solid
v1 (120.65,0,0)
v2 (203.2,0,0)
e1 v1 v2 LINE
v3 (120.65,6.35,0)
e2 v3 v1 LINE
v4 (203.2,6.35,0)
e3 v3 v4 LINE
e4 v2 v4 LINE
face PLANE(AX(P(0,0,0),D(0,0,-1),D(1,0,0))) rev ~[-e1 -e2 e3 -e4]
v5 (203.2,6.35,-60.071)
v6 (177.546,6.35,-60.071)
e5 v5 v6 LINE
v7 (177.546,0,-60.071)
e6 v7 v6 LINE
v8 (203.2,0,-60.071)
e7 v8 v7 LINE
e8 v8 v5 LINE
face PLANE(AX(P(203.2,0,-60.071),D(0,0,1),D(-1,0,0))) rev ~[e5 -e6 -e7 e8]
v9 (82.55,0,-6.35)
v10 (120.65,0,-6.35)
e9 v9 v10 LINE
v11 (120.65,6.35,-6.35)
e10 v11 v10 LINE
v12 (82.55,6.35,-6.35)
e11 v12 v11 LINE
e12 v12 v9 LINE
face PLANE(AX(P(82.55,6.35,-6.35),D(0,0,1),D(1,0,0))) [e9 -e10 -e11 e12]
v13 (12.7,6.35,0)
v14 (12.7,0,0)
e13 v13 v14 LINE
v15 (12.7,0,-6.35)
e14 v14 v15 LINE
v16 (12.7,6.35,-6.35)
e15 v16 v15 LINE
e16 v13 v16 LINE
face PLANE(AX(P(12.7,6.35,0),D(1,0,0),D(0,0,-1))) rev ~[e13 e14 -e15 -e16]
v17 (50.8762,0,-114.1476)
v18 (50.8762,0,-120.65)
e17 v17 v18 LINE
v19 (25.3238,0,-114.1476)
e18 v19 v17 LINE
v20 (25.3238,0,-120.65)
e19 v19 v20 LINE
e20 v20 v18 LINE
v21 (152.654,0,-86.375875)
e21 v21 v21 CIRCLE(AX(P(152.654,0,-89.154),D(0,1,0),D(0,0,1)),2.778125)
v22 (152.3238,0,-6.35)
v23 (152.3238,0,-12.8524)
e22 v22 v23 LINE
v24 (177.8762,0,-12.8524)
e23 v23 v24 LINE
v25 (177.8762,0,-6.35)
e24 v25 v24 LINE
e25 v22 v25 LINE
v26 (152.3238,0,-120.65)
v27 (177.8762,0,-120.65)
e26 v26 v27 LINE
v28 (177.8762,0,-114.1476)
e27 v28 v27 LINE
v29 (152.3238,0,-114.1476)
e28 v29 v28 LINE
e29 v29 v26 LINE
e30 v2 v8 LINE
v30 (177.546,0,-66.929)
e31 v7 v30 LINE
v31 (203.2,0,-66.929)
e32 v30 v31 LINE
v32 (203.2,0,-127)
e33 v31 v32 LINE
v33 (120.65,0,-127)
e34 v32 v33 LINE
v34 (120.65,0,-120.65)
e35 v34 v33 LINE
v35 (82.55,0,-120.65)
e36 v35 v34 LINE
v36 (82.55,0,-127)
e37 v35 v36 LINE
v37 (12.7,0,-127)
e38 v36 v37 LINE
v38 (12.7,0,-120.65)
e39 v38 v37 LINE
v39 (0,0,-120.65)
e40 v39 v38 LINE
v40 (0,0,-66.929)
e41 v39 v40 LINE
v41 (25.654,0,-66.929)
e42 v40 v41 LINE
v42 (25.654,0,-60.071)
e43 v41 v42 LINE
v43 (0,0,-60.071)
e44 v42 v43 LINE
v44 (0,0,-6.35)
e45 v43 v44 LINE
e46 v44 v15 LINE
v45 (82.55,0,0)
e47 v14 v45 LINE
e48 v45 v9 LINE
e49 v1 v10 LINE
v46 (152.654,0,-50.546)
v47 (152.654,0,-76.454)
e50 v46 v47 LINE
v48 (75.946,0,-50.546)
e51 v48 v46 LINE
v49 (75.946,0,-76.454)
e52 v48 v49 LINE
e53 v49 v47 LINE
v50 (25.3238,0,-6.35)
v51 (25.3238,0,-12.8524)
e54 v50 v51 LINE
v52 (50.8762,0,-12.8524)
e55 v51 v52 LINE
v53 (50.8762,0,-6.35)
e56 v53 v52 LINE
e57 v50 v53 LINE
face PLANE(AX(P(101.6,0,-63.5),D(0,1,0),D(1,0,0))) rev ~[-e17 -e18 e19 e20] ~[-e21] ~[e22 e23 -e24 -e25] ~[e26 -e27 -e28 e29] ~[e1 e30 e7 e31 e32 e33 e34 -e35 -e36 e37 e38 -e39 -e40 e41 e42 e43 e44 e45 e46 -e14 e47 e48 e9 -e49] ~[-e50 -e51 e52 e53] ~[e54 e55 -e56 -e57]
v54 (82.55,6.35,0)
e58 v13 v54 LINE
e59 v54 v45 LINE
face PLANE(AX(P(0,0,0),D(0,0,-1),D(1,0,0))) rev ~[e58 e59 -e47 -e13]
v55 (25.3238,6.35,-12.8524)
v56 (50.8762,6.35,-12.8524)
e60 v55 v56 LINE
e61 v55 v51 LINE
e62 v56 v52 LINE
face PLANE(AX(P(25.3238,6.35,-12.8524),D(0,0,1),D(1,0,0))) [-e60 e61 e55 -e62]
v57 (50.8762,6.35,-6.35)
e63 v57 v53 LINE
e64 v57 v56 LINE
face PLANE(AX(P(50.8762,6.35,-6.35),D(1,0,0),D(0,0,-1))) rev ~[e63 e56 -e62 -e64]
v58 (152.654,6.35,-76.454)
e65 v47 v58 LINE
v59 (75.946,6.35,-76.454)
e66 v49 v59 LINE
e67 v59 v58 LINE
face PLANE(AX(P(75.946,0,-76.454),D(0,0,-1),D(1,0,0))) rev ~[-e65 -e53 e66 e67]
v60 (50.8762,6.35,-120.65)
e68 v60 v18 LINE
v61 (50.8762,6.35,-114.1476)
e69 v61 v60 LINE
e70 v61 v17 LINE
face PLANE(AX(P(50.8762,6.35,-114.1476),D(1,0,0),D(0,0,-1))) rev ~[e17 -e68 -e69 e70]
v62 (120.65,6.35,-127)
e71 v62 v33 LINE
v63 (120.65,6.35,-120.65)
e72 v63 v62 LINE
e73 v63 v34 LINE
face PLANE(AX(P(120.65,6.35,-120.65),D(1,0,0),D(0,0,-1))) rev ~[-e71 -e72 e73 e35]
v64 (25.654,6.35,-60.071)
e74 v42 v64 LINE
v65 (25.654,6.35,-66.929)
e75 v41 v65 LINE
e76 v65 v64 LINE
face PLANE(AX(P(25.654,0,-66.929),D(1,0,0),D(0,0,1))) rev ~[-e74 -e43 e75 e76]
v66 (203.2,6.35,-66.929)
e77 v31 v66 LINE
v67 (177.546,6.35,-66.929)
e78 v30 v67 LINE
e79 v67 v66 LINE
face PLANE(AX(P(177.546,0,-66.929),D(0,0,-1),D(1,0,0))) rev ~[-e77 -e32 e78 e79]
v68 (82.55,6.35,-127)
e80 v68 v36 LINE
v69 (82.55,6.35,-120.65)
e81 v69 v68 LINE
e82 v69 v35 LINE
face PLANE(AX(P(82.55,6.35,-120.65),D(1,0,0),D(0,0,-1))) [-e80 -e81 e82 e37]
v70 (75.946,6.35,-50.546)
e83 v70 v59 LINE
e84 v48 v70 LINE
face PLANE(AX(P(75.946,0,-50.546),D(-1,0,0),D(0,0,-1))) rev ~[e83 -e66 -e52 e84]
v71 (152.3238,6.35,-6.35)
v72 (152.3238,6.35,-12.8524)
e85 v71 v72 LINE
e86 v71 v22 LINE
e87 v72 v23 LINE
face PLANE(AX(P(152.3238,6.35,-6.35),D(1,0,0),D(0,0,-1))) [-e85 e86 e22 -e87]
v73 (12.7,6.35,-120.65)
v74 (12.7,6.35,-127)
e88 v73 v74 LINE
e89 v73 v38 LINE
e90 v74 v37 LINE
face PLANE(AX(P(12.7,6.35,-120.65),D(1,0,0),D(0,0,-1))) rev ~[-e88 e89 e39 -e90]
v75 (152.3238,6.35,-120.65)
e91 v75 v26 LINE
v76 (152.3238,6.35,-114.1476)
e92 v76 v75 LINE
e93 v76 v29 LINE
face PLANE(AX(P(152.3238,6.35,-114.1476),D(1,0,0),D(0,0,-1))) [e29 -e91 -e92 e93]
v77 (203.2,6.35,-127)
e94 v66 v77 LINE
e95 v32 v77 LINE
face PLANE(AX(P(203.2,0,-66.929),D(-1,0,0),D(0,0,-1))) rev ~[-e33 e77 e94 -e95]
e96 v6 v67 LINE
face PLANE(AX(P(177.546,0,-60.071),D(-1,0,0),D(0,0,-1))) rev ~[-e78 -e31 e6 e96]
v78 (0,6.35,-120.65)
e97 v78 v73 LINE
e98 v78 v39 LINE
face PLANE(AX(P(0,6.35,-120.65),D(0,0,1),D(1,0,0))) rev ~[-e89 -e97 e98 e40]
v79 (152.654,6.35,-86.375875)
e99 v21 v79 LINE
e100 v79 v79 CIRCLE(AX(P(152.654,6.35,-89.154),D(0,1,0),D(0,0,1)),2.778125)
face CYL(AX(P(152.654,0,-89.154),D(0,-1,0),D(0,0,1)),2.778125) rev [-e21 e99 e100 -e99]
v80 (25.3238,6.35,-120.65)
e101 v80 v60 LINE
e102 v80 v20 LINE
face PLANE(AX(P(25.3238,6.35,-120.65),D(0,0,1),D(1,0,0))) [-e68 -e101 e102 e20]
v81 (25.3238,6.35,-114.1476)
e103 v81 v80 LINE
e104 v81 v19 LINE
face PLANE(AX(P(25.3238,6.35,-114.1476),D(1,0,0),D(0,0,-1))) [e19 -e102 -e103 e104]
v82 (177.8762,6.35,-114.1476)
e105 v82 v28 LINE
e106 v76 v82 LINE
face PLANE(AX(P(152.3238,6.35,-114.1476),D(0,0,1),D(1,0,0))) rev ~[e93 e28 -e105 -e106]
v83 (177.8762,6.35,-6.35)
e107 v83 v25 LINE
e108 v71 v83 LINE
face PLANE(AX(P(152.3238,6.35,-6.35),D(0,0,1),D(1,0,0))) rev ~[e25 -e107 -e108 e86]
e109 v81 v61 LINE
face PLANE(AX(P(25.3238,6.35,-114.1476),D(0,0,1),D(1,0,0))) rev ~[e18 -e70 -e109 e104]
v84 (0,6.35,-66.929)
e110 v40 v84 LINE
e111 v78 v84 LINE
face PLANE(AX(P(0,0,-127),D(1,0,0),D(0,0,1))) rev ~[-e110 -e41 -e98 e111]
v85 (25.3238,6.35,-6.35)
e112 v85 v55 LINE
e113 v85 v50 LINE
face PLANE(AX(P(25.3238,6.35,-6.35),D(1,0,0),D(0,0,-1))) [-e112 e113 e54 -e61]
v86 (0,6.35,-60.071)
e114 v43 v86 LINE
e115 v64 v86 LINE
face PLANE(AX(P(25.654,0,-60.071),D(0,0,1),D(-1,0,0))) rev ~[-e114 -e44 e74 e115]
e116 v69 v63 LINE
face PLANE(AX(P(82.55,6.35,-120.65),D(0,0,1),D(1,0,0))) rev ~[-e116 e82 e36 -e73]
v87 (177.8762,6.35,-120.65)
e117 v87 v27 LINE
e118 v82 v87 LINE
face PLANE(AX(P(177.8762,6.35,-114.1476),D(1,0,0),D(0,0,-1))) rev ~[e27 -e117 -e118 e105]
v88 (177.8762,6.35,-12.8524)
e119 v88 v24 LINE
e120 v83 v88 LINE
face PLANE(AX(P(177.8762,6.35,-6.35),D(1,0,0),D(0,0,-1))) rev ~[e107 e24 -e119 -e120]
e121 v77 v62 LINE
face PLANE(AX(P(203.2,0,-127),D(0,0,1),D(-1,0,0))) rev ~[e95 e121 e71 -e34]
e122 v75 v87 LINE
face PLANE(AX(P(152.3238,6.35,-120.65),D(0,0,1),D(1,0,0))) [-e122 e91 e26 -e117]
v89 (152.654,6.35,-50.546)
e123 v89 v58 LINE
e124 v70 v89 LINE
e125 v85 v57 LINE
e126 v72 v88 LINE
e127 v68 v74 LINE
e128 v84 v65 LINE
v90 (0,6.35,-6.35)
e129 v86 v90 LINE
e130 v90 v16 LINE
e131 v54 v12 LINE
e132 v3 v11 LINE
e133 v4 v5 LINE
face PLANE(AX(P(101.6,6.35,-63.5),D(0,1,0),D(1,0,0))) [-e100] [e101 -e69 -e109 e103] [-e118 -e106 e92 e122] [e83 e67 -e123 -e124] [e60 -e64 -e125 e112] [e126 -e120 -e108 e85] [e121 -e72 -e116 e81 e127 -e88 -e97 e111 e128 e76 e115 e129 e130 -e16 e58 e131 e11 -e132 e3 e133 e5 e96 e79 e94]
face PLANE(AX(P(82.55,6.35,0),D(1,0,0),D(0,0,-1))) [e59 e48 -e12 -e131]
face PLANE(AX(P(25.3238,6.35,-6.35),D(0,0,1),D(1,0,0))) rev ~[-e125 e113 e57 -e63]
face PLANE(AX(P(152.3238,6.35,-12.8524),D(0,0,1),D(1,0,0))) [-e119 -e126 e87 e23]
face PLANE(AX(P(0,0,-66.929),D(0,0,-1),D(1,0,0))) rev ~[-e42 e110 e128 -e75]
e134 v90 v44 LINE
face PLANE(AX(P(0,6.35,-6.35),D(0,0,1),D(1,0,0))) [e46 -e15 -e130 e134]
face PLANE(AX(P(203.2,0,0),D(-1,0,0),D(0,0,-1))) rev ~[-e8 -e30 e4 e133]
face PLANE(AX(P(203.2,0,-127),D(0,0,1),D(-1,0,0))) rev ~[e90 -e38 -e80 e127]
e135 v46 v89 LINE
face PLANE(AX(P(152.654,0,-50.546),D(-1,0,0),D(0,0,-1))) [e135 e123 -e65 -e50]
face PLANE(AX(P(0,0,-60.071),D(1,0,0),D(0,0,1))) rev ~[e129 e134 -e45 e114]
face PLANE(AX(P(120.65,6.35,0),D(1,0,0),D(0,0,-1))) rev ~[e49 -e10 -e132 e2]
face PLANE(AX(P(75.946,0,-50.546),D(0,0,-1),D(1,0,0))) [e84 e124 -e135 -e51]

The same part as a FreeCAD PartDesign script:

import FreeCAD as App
import Part
import Sketcher
Q = App.Units.Quantity

doc = App.newDocument("Part")
params = doc.addObject("Spreadsheet::Sheet", "Params")
for row, (alias, value) in enumerate([
    ("sketch1_width", "8 in"),
    ("sketch1_diameter", "0.21875 in"),
    ("sketch1_width2", "1.01 in"),
    ("sketch1_width3", "3.02 in"),
    ("sketch1_height", "0.27 in"),
    ("pad1_length", "0.25 in"),
    ("sketch2_width", "0.5 in"),
    ("sketch2_width2", "1.5 in"),
    ("sketch2_height", "0.25 in"),
    ("sketch2_width3", "1.006 in"),
    ("sketch2_height2", "0.256 in"),
], start=1):
    params.set(f"A{row}", alias)
    params.set(f"B{row}", "=" + value)
    params.setAlias(f"B{row}", alias)

body = doc.addObject("PartDesign::Body", "Body")

# Sketch on XZ plane
sketch1 = body.newObject("Sketcher::SketchObject", "Sketch")
sketch1.AttachmentSupport = (doc.getObject("XZ_Plane"), [""])
sketch1.MapMode = "FlatFace"
sketch1.addGeometry([
    Part.LineSegment(App.Vector(0, 0, 0), App.Vector(203.2, 0, 0)),  # 0
    Part.LineSegment(App.Vector(203.2, 0, 0), App.Vector(203.2, -60.071, 0)),  # 1
    Part.LineSegment(App.Vector(203.2, -60.071, 0), App.Vector(177.546, -60.071, 0)),  # 2
    Part.LineSegment(App.Vector(177.546, -60.071, 0), App.Vector(177.546, -66.929, 0)),  # 3
    Part.LineSegment(App.Vector(177.546, -66.929, 0), App.Vector(203.2, -66.929, 0)),  # 4
    Part.LineSegment(App.Vector(203.2, -66.929, 0), App.Vector(203.2, -127, 0)),  # 5
    Part.LineSegment(App.Vector(203.2, -127, 0), App.Vector(0, -127, 0)),  # 6
    Part.LineSegment(App.Vector(0, -127, 0), App.Vector(0, -66.929, 0)),  # 7
    Part.LineSegment(App.Vector(0, -66.929, 0), App.Vector(25.654, -66.929, 0)),  # 8
    Part.LineSegment(App.Vector(25.654, -66.929, 0), App.Vector(25.654, -60.071, 0)),  # 9
    Part.LineSegment(App.Vector(25.654, -60.071, 0), App.Vector(0, -60.071, 0)),  # 10
    Part.LineSegment(App.Vector(0, -60.071, 0), App.Vector(0, 0, 0)),  # 11
    Part.LineSegment(App.Vector(152.654, -50.546, 0), App.Vector(75.946, -50.546, 0)),  # 12
    Part.LineSegment(App.Vector(75.946, -50.546, 0), App.Vector(75.946, -76.454, 0)),  # 13
    Part.LineSegment(App.Vector(75.946, -76.454, 0), App.Vector(152.654, -76.454, 0)),  # 14
    Part.LineSegment(App.Vector(152.654, -76.454, 0), App.Vector(152.654, -50.546, 0)),  # 15
    Part.Circle(App.Vector(152.654, -89.154, 0), App.Vector(0, 0, 1), 2.778125),  # 16
], False)
sketch1.addConstraint([
    Sketcher.Constraint("Coincident", 0, 2, 1, 1),
    Sketcher.Constraint("Coincident", 1, 2, 2, 1),
    Sketcher.Constraint("Coincident", 2, 2, 3, 1),
    Sketcher.Constraint("Coincident", 3, 2, 4, 1),
    Sketcher.Constraint("Coincident", 4, 2, 5, 1),
    Sketcher.Constraint("Coincident", 5, 2, 6, 1),
    Sketcher.Constraint("Coincident", 6, 2, 7, 1),
    Sketcher.Constraint("Coincident", 7, 2, 8, 1),
    Sketcher.Constraint("Coincident", 8, 2, 9, 1),
    Sketcher.Constraint("Coincident", 9, 2, 10, 1),
    Sketcher.Constraint("Coincident", 10, 2, 11, 1),
    Sketcher.Constraint("Coincident", 11, 2, 0, 1),
    Sketcher.Constraint("Coincident", 12, 2, 13, 1),
    Sketcher.Constraint("Coincident", 13, 2, 14, 1),
    Sketcher.Constraint("Coincident", 14, 2, 15, 1),
    Sketcher.Constraint("Coincident", 15, 2, 12, 1),
    Sketcher.Constraint("Horizontal", 0),
    Sketcher.Constraint("Vertical", 1),
    Sketcher.Constraint("Horizontal", 2),
    Sketcher.Constraint("Vertical", 3),
    Sketcher.Constraint("Horizontal", 4),
    Sketcher.Constraint("Vertical", 5),
    Sketcher.Constraint("Horizontal", 6),
    Sketcher.Constraint("Vertical", 7),
    Sketcher.Constraint("Horizontal", 8),
    Sketcher.Constraint("Vertical", 9),
    Sketcher.Constraint("Horizontal", 10),
    Sketcher.Constraint("Vertical", 11),
    Sketcher.Constraint("Horizontal", 12),
    Sketcher.Constraint("Vertical", 13),
    Sketcher.Constraint("Horizontal", 14),
    Sketcher.Constraint("Vertical", 15),
    Sketcher.Constraint("Coincident", 11, 2, -1, 1),
    Sketcher.Constraint("PointOnObject", 6, 2, -2),
    Sketcher.Constraint("Horizontal", 4, 2, 7, 2),
    Sketcher.Constraint("Horizontal", 2, 2, 9, 2),
    Sketcher.Constraint("Vertical", 1, 2, 4, 2),
    Sketcher.Constraint("Vertical", 16, 3, 14, 2),
    Sketcher.Constraint("Equal", 4, 8),
    Sketcher.Constraint("Equal", 1, 5),
    Sketcher.Constraint("DistanceX", 0, 1, 0, 2, Q("8 in")),
    Sketcher.Constraint("Diameter", 16, Q("0.21875 in")),
    Sketcher.Constraint("DistanceY", 5, 2, -1, 1, Q("5 in")),
    Sketcher.Constraint("DistanceX", 8, 2, 16, 3, Q("5 in")),
    Sketcher.Constraint("DistanceX", 2, 2, 2, 1, Q("1.01 in")),
    Sketcher.Constraint("DistanceX", 12, 2, 12, 1, Q("3.02 in")),
    Sketcher.Constraint("DistanceY", 3, 2, 3, 1, Q("0.27 in")),
    Sketcher.Constraint("DistanceY", 13, 2, 13, 1, Q("1.02 in")),
    Sketcher.Constraint("DistanceY", 16, 3, 14, 2, Q("0.5 in")),
    Sketcher.Constraint("DistanceY", 16, 3, -1, 1, Q("3.51 in")),
])
sketch1.setExpression("Constraints[40]", "Params.sketch1_width")
sketch1.setExpression("Constraints[41]", "Params.sketch1_diameter")
sketch1.setExpression("Constraints[44]", "Params.sketch1_width2")
sketch1.setExpression("Constraints[45]", "Params.sketch1_width3")
sketch1.setExpression("Constraints[46]", "Params.sketch1_height")
pad1 = body.newObject("PartDesign::Pad", "Pad")
pad1.Profile = sketch1
pad1.setExpression("Length", "Params.pad1_length")
pad1.Reversed = True

# Sketch on XZ plane
sketch2 = body.newObject("Sketcher::SketchObject", "Sketch001")
sketch2.AttachmentSupport = (doc.getObject("XZ_Plane"), [""])
sketch2.MapMode = "FlatFace"
sketch2.AttachmentOffset = App.Placement(App.Vector(0, 0, -0.25 * 25.4), App.Rotation())
sketch2.addGeometry([
    Part.LineSegment(App.Vector(0, -127, 0), App.Vector(0, -120.65, 0)),  # 0
    Part.LineSegment(App.Vector(0, -120.65, 0), App.Vector(12.7, -120.65, 0)),  # 1
    Part.LineSegment(App.Vector(12.7, -120.65, 0), App.Vector(12.7, -127, 0)),  # 2
    Part.LineSegment(App.Vector(12.7, -127, 0), App.Vector(0, -127, 0)),  # 3
    Part.LineSegment(App.Vector(25.3238, -120.65, 0), App.Vector(25.3238, -114.1476, 0)),  # 4
    Part.LineSegment(App.Vector(25.3238, -114.1476, 0), App.Vector(50.8762, -114.1476, 0)),  # 5
    Part.LineSegment(App.Vector(50.8762, -114.1476, 0), App.Vector(50.8762, -120.65, 0)),  # 6
    Part.LineSegment(App.Vector(50.8762, -120.65, 0), App.Vector(25.3238, -120.65, 0)),  # 7
    Part.LineSegment(App.Vector(82.55, -127, 0), App.Vector(82.55, -120.65, 0)),  # 8
    Part.LineSegment(App.Vector(82.55, -120.65, 0), App.Vector(120.65, -120.65, 0)),  # 9
    Part.LineSegment(App.Vector(120.65, -120.65, 0), App.Vector(120.65, -127, 0)),  # 10
    Part.LineSegment(App.Vector(120.65, -127, 0), App.Vector(82.55, -127, 0)),  # 11
    Part.LineSegment(App.Vector(152.3238, -120.65, 0), App.Vector(152.3238, -114.1476, 0)),  # 12
    Part.LineSegment(App.Vector(152.3238, -114.1476, 0), App.Vector(177.8762, -114.1476, 0)),  # 13
    Part.LineSegment(App.Vector(177.8762, -114.1476, 0), App.Vector(177.8762, -120.65, 0)),  # 14
    Part.LineSegment(App.Vector(177.8762, -120.65, 0), App.Vector(152.3238, -120.65, 0)),  # 15
    Part.LineSegment(App.Vector(152.3238, -12.8524, 0), App.Vector(152.3238, -6.35, 0)),  # 16
    Part.LineSegment(App.Vector(152.3238, -6.35, 0), App.Vector(177.8762, -6.35, 0)),  # 17
    Part.LineSegment(App.Vector(177.8762, -6.35, 0), App.Vector(177.8762, -12.8524, 0)),  # 18
    Part.LineSegment(App.Vector(177.8762, -12.8524, 0), App.Vector(152.3238, -12.8524, 0)),  # 19
    Part.LineSegment(App.Vector(82.55, -6.35, 0), App.Vector(82.55, 0, 0)),  # 20
    Part.LineSegment(App.Vector(82.55, 0, 0), App.Vector(120.65, 0, 0)),  # 21
    Part.LineSegment(App.Vector(120.65, 0, 0), App.Vector(120.65, -6.35, 0)),  # 22
    Part.LineSegment(App.Vector(120.65, -6.35, 0), App.Vector(82.55, -6.35, 0)),  # 23
    Part.LineSegment(App.Vector(25.3238, -12.8524, 0), App.Vector(25.3238, -6.35, 0)),  # 24
    Part.LineSegment(App.Vector(25.3238, -6.35, 0), App.Vector(50.8762, -6.35, 0)),  # 25
    Part.LineSegment(App.Vector(50.8762, -6.35, 0), App.Vector(50.8762, -12.8524, 0)),  # 26
    Part.LineSegment(App.Vector(50.8762, -12.8524, 0), App.Vector(25.3238, -12.8524, 0)),  # 27
    Part.LineSegment(App.Vector(0, -6.35, 0), App.Vector(0, 0, 0)),  # 28
    Part.LineSegment(App.Vector(0, 0, 0), App.Vector(12.7, 0, 0)),  # 29
    Part.LineSegment(App.Vector(12.7, 0, 0), App.Vector(12.7, -6.35, 0)),  # 30
    Part.LineSegment(App.Vector(12.7, -6.35, 0), App.Vector(0, -6.35, 0)),  # 31
], False)
sketch2.addConstraint([
    Sketcher.Constraint("Coincident", 0, 2, 1, 1),
    Sketcher.Constraint("Coincident", 1, 2, 2, 1),
    Sketcher.Constraint("Coincident", 2, 2, 3, 1),
    Sketcher.Constraint("Coincident", 3, 2, 0, 1),
    Sketcher.Constraint("Coincident", 4, 2, 5, 1),
    Sketcher.Constraint("Coincident", 5, 2, 6, 1),
    Sketcher.Constraint("Coincident", 6, 2, 7, 1),
    Sketcher.Constraint("Coincident", 7, 2, 4, 1),
    Sketcher.Constraint("Coincident", 8, 2, 9, 1),
    Sketcher.Constraint("Coincident", 9, 2, 10, 1),
    Sketcher.Constraint("Coincident", 10, 2, 11, 1),
    Sketcher.Constraint("Coincident", 11, 2, 8, 1),
    Sketcher.Constraint("Coincident", 12, 2, 13, 1),
    Sketcher.Constraint("Coincident", 13, 2, 14, 1),
    Sketcher.Constraint("Coincident", 14, 2, 15, 1),
    Sketcher.Constraint("Coincident", 15, 2, 12, 1),
    Sketcher.Constraint("Coincident", 16, 2, 17, 1),
    Sketcher.Constraint("Coincident", 17, 2, 18, 1),
    Sketcher.Constraint("Coincident", 18, 2, 19, 1),
    Sketcher.Constraint("Coincident", 19, 2, 16, 1),
    Sketcher.Constraint("Coincident", 20, 2, 21, 1),
    Sketcher.Constraint("Coincident", 21, 2, 22, 1),
    Sketcher.Constraint("Coincident", 22, 2, 23, 1),
    Sketcher.Constraint("Coincident", 23, 2, 20, 1),
    Sketcher.Constraint("Coincident", 24, 2, 25, 1),
    Sketcher.Constraint("Coincident", 25, 2, 26, 1),
    Sketcher.Constraint("Coincident", 26, 2, 27, 1),
    Sketcher.Constraint("Coincident", 27, 2, 24, 1),
    Sketcher.Constraint("Coincident", 28, 2, 29, 1),
    Sketcher.Constraint("Coincident", 29, 2, 30, 1),
    Sketcher.Constraint("Coincident", 30, 2, 31, 1),
    Sketcher.Constraint("Coincident", 31, 2, 28, 1),
    Sketcher.Constraint("Vertical", 0),
    Sketcher.Constraint("Horizontal", 1),
    Sketcher.Constraint("Vertical", 2),
    Sketcher.Constraint("Horizontal", 3),
    Sketcher.Constraint("Vertical", 4),
    Sketcher.Constraint("Horizontal", 5),
    Sketcher.Constraint("Vertical", 6),
    Sketcher.Constraint("Horizontal", 7),
    Sketcher.Constraint("Vertical", 8),
    Sketcher.Constraint("Horizontal", 9),
    Sketcher.Constraint("Vertical", 10),
    Sketcher.Constraint("Horizontal", 11),
    Sketcher.Constraint("Vertical", 12),
    Sketcher.Constraint("Horizontal", 13),
    Sketcher.Constraint("Vertical", 14),
    Sketcher.Constraint("Horizontal", 15),
    Sketcher.Constraint("Vertical", 16),
    Sketcher.Constraint("Horizontal", 17),
    Sketcher.Constraint("Vertical", 18),
    Sketcher.Constraint("Horizontal", 19),
    Sketcher.Constraint("Vertical", 20),
    Sketcher.Constraint("Horizontal", 21),
    Sketcher.Constraint("Vertical", 22),
    Sketcher.Constraint("Horizontal", 23),
    Sketcher.Constraint("Vertical", 24),
    Sketcher.Constraint("Horizontal", 25),
    Sketcher.Constraint("Vertical", 26),
    Sketcher.Constraint("Horizontal", 27),
    Sketcher.Constraint("Vertical", 28),
    Sketcher.Constraint("Horizontal", 29),
    Sketcher.Constraint("Vertical", 30),
    Sketcher.Constraint("Horizontal", 31),
    Sketcher.Constraint("Coincident", 28, 2, -1, 1),
    Sketcher.Constraint("PointOnObject", 0, 2, -2),
    Sketcher.Constraint("PointOnObject", 20, 2, -1),
    Sketcher.Constraint("Horizontal", 1, 2, 6, 2),
    Sketcher.Constraint("Horizontal", 7, 2, 8, 2),
    Sketcher.Constraint("Horizontal", 3, 2, 10, 2),
    Sketcher.Constraint("Horizontal", 5, 2, 12, 2),
    Sketcher.Constraint("Horizontal", 9, 2, 14, 2),
    Sketcher.Constraint("Horizontal", 17, 2, 22, 2),
    Sketcher.Constraint("Horizontal", 23, 2, 24, 2),
    Sketcher.Constraint("Horizontal", 19, 2, 26, 2),
    Sketcher.Constraint("Horizontal", 25, 2, 30, 2),
    Sketcher.Constraint("Vertical", 15, 2, 16, 2),
    Sketcher.Constraint("Vertical", 14, 2, 17, 2),
    Sketcher.Constraint("Vertical", 11, 2, 20, 2),
    Sketcher.Constraint("Vertical", 10, 2, 21, 2),
    Sketcher.Constraint("Vertical", 7, 2, 24, 2),
    Sketcher.Constraint("Vertical", 6, 2, 25, 2),
    Sketcher.Constraint("Vertical", 2, 2, 29, 2),
    Sketcher.Constraint("Equal", 7, 13),
    Sketcher.Constraint("Equal", 14, 16),
    Sketcher.Constraint("Equal", 10, 20),
    Sketcher.Constraint("DistanceX", 1, 1, 1, 2, Q("0.5 in")),
    Sketcher.Constraint("DistanceX", 9, 1, 9, 2, Q("1.5 in")),
    Sketcher.Constraint("DistanceY", 2, 2, -1, 1, Q("5 in")),
    Sketcher.Constraint("DistanceY", 0, 1, 0, 2, Q("0.25 in")),
    Sketcher.Constraint("DistanceX", 5, 1, 5, 2, Q("1.006 in")),
    Sketcher.Constraint("DistanceY", 4, 1, 4, 2, Q("0.256 in")),
    Sketcher.Constraint("DistanceX", -1, 1, 8, 2, Q("3.25 in")),
    Sketcher.Constraint("DistanceX", -1, 1, 4, 2, Q("0.997 in")),
    Sketcher.Constraint("DistanceX", -1, 1, 12, 2, Q("5.997 in")),
])
sketch2.setExpression("Constraints[86]", "Params.sketch2_width")
sketch2.setExpression("Constraints[87]", "Params.sketch2_width2")
sketch2.setExpression("Constraints[89]", "Params.sketch2_height")
sketch2.setExpression("Constraints[90]", "Params.sketch2_width3")
sketch2.setExpression("Constraints[91]", "Params.sketch2_height2")
pocket1 = body.newObject("PartDesign::Pocket", "Pocket")
pocket1.Profile = sketch2
pocket1.Type = "ThroughAll"
pocket1.Reversed = True

doc.recompute()
